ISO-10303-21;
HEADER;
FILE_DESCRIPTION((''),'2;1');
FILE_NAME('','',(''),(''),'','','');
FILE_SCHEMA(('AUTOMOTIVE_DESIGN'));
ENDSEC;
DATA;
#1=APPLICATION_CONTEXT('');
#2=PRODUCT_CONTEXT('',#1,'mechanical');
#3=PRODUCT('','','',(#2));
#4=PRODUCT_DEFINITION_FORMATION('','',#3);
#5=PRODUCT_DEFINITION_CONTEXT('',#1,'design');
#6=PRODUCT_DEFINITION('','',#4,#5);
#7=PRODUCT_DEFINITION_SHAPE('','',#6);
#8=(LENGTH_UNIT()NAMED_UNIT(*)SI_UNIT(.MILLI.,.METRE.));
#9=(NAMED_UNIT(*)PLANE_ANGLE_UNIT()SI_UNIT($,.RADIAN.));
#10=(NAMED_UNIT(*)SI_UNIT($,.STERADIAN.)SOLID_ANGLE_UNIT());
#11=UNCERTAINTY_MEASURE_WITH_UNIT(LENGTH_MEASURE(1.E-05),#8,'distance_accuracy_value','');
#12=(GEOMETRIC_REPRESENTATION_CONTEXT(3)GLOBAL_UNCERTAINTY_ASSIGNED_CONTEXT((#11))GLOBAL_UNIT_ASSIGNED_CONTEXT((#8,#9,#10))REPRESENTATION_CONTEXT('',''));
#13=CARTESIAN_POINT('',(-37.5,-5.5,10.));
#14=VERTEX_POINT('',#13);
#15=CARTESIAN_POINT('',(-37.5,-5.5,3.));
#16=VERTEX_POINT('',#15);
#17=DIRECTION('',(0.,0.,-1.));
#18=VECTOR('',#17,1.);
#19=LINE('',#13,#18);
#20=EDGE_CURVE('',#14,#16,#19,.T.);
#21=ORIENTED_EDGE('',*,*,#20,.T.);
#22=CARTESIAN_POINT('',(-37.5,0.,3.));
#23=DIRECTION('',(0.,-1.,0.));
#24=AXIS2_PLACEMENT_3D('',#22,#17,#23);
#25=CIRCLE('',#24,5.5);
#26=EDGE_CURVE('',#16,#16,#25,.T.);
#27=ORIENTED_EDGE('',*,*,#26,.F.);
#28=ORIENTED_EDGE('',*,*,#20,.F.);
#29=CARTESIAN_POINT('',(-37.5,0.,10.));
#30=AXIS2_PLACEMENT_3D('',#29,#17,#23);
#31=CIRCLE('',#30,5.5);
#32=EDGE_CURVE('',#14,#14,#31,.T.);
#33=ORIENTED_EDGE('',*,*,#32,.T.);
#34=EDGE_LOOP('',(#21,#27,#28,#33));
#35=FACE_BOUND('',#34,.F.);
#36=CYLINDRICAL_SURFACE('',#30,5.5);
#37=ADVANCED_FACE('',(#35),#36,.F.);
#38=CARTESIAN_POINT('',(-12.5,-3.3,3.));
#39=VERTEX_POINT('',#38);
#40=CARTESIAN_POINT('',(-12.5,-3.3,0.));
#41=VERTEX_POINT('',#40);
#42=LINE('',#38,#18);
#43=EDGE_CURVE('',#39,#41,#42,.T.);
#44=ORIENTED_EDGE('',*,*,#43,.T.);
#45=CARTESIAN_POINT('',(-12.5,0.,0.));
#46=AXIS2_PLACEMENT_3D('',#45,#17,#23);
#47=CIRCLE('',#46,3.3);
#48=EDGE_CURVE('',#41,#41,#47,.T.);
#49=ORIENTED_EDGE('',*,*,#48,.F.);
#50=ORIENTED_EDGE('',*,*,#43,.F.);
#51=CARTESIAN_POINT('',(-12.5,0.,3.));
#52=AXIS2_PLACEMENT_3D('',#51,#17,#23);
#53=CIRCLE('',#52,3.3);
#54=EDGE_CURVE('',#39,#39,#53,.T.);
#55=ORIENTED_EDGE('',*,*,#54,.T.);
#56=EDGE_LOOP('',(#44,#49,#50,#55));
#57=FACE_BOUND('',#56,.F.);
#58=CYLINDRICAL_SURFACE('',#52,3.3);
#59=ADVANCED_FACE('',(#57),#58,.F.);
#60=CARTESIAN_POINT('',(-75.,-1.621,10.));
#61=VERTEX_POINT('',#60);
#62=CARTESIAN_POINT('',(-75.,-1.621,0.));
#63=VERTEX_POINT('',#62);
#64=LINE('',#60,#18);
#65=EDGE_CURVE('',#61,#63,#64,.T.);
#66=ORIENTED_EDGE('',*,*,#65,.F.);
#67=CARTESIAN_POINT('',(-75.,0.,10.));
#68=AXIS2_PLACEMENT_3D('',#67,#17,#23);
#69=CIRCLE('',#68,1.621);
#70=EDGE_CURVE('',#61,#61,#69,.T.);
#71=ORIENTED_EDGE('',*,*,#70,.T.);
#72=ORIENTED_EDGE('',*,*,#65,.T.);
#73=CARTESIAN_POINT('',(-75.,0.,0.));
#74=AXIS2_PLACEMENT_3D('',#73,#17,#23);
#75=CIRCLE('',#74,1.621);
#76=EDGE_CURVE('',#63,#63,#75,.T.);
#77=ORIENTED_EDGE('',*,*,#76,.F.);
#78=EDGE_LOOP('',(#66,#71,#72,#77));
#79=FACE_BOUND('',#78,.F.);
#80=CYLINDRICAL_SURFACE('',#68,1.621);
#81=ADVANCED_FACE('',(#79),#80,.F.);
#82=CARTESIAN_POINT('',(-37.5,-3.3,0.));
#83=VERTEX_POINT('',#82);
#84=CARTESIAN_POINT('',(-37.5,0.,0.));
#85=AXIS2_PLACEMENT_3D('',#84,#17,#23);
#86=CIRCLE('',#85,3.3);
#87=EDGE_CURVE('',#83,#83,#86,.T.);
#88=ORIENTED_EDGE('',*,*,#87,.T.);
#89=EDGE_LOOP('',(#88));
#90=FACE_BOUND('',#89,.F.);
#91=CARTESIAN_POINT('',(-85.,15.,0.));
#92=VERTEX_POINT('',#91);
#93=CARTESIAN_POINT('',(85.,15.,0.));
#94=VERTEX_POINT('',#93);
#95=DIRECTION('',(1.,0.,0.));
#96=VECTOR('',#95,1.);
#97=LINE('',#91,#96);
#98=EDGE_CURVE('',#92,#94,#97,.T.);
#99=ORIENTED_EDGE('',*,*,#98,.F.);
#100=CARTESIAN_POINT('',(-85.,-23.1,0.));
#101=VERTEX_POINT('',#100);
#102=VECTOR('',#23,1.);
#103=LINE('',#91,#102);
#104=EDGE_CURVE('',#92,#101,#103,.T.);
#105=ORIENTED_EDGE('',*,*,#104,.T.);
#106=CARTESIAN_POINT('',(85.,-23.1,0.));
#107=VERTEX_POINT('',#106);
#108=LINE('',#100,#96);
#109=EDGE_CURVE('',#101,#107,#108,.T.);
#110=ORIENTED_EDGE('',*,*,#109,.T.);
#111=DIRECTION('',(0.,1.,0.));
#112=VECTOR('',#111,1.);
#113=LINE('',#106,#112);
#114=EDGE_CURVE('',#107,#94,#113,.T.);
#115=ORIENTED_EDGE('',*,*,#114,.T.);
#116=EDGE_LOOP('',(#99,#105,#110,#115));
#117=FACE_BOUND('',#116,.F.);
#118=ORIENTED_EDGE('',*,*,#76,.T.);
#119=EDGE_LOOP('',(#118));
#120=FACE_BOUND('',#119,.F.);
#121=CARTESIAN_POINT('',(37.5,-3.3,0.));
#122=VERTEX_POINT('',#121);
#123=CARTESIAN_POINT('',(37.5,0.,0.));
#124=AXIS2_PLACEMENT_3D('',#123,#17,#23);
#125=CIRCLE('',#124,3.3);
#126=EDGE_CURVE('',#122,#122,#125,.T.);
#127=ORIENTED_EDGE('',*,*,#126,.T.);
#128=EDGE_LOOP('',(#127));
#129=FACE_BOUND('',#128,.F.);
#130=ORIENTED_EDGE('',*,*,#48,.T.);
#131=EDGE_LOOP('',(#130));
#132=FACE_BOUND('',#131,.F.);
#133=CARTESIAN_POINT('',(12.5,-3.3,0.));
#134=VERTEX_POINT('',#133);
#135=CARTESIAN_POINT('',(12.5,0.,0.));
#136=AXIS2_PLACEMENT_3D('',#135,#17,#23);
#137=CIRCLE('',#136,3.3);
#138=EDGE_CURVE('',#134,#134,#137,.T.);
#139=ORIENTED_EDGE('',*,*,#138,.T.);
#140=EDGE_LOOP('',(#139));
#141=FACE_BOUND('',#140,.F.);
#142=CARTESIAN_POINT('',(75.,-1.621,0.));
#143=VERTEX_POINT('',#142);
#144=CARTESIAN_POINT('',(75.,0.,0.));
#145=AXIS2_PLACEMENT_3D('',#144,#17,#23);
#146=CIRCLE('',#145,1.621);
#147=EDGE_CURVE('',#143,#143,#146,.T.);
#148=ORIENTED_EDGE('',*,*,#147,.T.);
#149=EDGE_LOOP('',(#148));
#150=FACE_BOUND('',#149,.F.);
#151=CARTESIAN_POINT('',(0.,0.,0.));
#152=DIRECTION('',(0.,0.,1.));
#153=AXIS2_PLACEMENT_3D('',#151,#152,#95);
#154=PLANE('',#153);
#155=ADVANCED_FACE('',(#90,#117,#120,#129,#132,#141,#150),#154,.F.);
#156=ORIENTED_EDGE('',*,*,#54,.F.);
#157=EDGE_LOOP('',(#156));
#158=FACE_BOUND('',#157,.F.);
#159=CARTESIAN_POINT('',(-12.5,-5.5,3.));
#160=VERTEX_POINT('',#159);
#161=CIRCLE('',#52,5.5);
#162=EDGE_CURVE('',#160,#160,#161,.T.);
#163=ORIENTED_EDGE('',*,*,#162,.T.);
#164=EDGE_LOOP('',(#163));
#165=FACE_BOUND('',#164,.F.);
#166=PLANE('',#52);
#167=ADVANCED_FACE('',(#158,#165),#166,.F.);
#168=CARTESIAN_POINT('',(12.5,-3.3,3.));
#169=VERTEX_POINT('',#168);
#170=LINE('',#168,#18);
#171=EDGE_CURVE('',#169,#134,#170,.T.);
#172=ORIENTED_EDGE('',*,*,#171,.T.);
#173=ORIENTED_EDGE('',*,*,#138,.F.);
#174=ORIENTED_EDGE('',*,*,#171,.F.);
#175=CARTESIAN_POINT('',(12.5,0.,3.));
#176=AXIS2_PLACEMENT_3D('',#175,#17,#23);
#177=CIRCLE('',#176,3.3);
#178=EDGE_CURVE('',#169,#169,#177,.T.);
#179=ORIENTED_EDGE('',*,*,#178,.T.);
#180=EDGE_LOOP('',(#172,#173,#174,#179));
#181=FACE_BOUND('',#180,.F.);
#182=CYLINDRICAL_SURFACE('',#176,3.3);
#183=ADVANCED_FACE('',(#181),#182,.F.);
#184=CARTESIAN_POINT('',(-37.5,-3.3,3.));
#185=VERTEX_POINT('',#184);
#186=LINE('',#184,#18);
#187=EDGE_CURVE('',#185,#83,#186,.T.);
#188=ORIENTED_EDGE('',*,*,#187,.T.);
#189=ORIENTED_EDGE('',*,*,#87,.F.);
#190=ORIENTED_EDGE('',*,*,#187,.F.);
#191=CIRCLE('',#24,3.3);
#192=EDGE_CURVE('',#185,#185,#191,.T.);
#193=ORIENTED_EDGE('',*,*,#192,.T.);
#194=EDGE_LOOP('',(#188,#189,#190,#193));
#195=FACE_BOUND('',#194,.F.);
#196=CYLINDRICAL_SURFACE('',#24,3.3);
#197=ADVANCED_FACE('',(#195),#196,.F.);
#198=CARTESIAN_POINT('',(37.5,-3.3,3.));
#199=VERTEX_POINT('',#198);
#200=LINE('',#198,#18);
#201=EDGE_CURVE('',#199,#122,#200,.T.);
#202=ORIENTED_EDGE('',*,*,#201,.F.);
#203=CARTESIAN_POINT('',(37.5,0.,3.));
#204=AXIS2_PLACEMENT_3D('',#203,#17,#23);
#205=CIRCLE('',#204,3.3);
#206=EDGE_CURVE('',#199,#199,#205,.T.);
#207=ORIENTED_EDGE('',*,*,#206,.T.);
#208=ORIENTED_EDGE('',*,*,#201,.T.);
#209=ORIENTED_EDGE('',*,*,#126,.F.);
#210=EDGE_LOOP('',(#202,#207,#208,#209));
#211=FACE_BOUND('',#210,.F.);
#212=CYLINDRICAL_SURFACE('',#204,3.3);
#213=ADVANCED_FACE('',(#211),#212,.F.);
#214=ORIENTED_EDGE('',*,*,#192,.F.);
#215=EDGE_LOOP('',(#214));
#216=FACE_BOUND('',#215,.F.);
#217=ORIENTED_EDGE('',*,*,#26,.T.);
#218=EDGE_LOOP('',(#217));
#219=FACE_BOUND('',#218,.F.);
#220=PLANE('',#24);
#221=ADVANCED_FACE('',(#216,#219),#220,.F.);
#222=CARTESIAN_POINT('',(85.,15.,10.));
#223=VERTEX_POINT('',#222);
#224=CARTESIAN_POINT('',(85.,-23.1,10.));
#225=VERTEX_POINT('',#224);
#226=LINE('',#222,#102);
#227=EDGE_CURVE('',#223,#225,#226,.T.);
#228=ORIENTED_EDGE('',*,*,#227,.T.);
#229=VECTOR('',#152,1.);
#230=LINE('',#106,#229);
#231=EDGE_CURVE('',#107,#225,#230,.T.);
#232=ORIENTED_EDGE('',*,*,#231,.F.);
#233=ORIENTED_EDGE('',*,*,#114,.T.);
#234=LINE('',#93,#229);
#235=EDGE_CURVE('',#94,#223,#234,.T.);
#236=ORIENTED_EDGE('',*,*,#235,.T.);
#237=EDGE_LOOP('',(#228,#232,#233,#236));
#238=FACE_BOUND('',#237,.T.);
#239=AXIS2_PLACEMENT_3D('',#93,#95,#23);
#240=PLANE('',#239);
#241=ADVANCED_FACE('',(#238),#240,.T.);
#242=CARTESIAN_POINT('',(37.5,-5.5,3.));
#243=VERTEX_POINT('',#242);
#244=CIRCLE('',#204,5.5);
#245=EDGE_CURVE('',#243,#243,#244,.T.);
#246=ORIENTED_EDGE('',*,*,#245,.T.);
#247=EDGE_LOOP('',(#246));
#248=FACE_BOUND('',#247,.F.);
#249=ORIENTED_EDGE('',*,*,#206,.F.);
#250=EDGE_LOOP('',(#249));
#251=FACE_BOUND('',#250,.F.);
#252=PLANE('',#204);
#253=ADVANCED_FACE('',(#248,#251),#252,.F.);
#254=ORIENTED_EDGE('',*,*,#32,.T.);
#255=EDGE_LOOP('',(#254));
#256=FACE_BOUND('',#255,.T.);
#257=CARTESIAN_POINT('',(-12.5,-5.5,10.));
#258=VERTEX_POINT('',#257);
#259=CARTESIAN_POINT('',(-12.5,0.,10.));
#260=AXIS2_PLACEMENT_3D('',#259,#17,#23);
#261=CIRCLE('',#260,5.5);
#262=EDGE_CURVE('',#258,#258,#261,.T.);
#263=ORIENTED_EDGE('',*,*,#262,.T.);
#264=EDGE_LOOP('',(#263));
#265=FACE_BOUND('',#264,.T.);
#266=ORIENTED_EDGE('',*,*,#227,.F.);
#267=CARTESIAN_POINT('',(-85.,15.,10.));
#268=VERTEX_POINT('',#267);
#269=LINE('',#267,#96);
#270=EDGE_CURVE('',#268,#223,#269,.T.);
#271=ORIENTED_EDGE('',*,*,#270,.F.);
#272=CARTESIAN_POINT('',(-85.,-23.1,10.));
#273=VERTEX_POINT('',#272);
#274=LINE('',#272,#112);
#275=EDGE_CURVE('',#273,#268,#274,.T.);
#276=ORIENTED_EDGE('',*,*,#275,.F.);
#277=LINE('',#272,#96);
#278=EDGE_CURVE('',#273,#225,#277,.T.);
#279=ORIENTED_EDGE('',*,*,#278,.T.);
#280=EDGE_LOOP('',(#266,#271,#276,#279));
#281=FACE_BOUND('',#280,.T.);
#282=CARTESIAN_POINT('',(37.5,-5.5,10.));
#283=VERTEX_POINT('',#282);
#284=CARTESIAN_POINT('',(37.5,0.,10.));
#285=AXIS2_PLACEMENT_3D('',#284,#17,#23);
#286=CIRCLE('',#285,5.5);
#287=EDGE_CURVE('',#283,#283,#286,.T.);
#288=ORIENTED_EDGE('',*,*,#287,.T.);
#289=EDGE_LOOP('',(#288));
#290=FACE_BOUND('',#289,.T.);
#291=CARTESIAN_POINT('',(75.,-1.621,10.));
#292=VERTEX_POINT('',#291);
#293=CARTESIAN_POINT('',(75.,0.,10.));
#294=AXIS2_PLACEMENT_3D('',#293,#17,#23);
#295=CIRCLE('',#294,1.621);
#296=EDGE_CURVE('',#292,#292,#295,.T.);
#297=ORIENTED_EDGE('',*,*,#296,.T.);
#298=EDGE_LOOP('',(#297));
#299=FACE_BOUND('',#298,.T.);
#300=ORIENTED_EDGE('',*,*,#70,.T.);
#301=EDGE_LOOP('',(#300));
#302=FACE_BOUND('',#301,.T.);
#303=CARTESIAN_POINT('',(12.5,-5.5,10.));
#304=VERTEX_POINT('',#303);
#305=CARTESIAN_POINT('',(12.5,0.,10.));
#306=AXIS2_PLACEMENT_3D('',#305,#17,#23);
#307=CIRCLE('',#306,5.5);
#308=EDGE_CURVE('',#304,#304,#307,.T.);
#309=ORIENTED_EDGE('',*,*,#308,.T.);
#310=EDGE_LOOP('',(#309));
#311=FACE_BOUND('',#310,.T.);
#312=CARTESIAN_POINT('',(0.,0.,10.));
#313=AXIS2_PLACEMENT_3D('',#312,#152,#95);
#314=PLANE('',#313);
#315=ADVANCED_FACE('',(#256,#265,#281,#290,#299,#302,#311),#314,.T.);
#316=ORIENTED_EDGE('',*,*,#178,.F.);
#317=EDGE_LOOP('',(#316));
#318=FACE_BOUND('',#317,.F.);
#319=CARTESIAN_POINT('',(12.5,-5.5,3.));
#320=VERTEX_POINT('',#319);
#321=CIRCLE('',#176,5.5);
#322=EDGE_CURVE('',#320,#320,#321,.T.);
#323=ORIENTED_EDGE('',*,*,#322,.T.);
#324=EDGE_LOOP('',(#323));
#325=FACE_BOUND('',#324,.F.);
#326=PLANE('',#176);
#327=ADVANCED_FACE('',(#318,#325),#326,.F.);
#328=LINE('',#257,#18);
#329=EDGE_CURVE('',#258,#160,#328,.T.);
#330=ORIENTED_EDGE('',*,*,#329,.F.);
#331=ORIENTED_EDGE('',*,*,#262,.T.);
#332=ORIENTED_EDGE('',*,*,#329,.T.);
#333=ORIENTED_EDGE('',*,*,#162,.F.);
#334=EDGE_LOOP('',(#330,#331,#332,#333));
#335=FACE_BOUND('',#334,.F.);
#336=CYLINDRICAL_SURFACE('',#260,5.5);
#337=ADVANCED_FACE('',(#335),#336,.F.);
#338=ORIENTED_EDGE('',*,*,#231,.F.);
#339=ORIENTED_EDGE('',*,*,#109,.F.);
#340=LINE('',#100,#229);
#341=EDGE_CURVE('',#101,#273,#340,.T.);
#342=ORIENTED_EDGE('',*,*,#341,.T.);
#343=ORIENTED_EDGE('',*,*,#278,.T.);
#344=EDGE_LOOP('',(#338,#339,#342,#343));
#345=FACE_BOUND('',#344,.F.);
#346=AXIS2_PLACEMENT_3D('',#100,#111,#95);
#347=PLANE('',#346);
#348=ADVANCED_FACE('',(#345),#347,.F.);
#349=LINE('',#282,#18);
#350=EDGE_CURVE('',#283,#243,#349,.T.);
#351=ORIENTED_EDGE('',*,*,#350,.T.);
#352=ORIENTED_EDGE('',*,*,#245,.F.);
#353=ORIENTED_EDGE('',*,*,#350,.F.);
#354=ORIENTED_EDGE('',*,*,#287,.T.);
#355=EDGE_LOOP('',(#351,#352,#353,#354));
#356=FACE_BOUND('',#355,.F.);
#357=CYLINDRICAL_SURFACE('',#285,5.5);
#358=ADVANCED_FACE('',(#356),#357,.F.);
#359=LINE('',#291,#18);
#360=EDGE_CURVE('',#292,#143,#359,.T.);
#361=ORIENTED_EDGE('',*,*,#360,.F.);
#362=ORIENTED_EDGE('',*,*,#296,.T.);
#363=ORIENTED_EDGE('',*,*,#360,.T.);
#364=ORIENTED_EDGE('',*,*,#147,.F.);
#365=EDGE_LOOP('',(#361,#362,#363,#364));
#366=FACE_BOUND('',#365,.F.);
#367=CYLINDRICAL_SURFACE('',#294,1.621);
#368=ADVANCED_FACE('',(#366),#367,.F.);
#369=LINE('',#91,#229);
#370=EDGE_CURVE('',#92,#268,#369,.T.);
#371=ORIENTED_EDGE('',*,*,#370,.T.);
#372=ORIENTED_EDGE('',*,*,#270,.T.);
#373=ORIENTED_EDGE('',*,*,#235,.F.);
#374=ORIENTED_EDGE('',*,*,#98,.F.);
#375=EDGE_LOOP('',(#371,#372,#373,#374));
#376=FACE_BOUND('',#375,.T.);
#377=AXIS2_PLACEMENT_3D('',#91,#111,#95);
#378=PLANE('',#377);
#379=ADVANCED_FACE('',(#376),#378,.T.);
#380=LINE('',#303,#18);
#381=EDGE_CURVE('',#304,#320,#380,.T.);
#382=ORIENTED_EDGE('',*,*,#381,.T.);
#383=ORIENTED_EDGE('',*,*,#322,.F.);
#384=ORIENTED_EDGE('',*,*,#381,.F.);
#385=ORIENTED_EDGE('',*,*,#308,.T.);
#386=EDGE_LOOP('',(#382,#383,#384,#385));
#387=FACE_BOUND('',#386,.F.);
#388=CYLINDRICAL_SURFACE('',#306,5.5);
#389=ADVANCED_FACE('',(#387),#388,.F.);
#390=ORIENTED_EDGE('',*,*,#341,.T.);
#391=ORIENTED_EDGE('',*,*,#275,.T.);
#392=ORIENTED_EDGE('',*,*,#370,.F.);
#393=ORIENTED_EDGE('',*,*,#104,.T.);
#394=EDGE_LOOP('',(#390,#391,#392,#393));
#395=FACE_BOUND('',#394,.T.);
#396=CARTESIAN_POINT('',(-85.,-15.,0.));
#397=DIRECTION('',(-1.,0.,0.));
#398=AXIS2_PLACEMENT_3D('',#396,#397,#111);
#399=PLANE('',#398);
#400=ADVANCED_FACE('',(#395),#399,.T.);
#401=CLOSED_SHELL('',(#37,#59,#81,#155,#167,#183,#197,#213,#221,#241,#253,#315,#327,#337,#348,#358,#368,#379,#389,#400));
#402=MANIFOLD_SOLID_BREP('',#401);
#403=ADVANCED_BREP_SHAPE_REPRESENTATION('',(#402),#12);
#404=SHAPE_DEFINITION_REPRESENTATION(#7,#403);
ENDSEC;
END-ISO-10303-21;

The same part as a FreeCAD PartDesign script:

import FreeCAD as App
import Part
import Sketcher

V = App.Vector


def add_polygon(sketch, points):
    """Adds a closed chain of lines whose ends are joined by coincident constraints."""
    first, n = sketch.GeometryCount, len(points)
    for a, b in zip(points, points[1:] + points[:1]):
        sketch.addGeometry(Part.LineSegment(App.Vector(*a, 0), App.Vector(*b, 0)), False)
    for i in range(n):
        sketch.addConstraint(Sketcher.Constraint("Coincident", first + i, 2, first + (i + 1) % n, 1))

doc = App.newDocument("Part")
body = doc.addObject("PartDesign::Body", "Body")

# Sketch on XY plane
sketch1 = doc.addObject("Sketcher::SketchObject", "Sketch")
body.addObject(sketch1)
sketch1.AttachmentSupport = (doc.XY_Plane, [""])
sketch1.MapMode = "FlatFace"
add_polygon(sketch1, [(85, 15), (-85, 15), (-85, -23), (85, -23)])  # lines 0-3
sketch1.addConstraint([
    Sketcher.Constraint("Horizontal", 0),
    Sketcher.Constraint("Vertical", 1),
    Sketcher.Constraint("Horizontal", 2),
    Sketcher.Constraint("Vertical", 3),
    Sketcher.Constraint("DistanceX", 0, 2, 0, 1, 170.0),
    Sketcher.Constraint("DistanceX", 0, 2, -1, 1, 85.0),
    Sketcher.Constraint("DistanceY", -1, 1, 0, 2, 15.0),
    Sketcher.Constraint("DistanceY", 1, 2, 1, 1, 38.1),
])
pad1 = doc.addObject("PartDesign::Pad", "Pad")
body.addObject(pad1)
pad1.Profile = sketch1
pad1.Length = 10

# Sketch on XY plane
sketch2 = doc.addObject("Sketcher::SketchObject", "Sketch001")
body.addObject(sketch2)
sketch2.AttachmentSupport = (doc.XY_Plane, [""])
sketch2.MapMode = "FlatFace"
sketch2.AttachmentOffset = App.Placement(V(0, 0, 10), App.Rotation())
sketch2.addGeometry([
    Part.Circle(V(-37.5, 0, 0), V(0, 0, 1), 3.3),
    Part.Circle(V(-12.5, 0, 0), V(0, 0, 1), 3.3),
    Part.Circle(V(12.5, 0, 0), V(0, 0, 1), 3.3),
    Part.Circle(V(37.5, 0, 0), V(0, 0, 1), 3.3),
], False)
sketch2.addConstraint([
    Sketcher.Constraint("Equal", 0, 1),
    Sketcher.Constraint("Equal", 1, 2),
    Sketcher.Constraint("Equal", 2, 3),
    Sketcher.Constraint("Symmetric", 1, 3, 2, 3, -1, 1),
    Sketcher.Constraint("Symmetric", 0, 3, 3, 3, -1, 1),
    Sketcher.Constraint("PointOnObject", 0, 3, -1),
    Sketcher.Constraint("PointOnObject", 1, 3, -1),
    Sketcher.Constraint("Diameter", 0, 6.6),
    Sketcher.Constraint("DistanceX", 0, 3, 1, 3, 25.0),
    Sketcher.Constraint("DistanceX", 1, 3, 2, 3, 25.0),
])
doc.recompute()
hole = doc.addObject("PartDesign::Hole", "Hole")
body.addObject(hole)
hole.Profile = sketch2
hole.ThreadType = "None"
hole.Diameter = 6.6
hole.DepthType = "ThroughAll"
hole.HoleCutType = "Counterbore"
hole.HoleCutDiameter = 11
hole.HoleCutDepth = 7

# Sketch on XY plane
sketch3 = doc.addObject("Sketcher::SketchObject", "Sketch002")
body.addObject(sketch3)
sketch3.AttachmentSupport = (doc.XY_Plane, [""])
sketch3.MapMode = "FlatFace"
sketch3.AttachmentOffset = App.Placement(V(0, 0, 10), App.Rotation())
sketch3.addGeometry([
    Part.Circle(V(75, 0, 0), V(0, 0, 1), 1.6),
    Part.Circle(V(-75, 0, 0), V(0, 0, 1), 1.6),
], False)
sketch3.addConstraint([
    Sketcher.Constraint("Equal", 0, 1),
    Sketcher.Constraint("Symmetric", 0, 3, 1, 3, -1, 1),
    Sketcher.Constraint("PointOnObject", 0, 3, -1),
    Sketcher.Constraint("Diameter", 0, 3.242),
    Sketcher.Constraint("DistanceX", -1, 1, 0, 3, 75.0),
])
doc.recompute()
hole2 = doc.addObject("PartDesign::Hole", "Hole001")
body.addObject(hole2)
hole2.Profile = sketch3
hole2.ThreadType = "None"
hole2.Diameter = 3.242
hole2.DepthType = "ThroughAll"

doc.recompute()
